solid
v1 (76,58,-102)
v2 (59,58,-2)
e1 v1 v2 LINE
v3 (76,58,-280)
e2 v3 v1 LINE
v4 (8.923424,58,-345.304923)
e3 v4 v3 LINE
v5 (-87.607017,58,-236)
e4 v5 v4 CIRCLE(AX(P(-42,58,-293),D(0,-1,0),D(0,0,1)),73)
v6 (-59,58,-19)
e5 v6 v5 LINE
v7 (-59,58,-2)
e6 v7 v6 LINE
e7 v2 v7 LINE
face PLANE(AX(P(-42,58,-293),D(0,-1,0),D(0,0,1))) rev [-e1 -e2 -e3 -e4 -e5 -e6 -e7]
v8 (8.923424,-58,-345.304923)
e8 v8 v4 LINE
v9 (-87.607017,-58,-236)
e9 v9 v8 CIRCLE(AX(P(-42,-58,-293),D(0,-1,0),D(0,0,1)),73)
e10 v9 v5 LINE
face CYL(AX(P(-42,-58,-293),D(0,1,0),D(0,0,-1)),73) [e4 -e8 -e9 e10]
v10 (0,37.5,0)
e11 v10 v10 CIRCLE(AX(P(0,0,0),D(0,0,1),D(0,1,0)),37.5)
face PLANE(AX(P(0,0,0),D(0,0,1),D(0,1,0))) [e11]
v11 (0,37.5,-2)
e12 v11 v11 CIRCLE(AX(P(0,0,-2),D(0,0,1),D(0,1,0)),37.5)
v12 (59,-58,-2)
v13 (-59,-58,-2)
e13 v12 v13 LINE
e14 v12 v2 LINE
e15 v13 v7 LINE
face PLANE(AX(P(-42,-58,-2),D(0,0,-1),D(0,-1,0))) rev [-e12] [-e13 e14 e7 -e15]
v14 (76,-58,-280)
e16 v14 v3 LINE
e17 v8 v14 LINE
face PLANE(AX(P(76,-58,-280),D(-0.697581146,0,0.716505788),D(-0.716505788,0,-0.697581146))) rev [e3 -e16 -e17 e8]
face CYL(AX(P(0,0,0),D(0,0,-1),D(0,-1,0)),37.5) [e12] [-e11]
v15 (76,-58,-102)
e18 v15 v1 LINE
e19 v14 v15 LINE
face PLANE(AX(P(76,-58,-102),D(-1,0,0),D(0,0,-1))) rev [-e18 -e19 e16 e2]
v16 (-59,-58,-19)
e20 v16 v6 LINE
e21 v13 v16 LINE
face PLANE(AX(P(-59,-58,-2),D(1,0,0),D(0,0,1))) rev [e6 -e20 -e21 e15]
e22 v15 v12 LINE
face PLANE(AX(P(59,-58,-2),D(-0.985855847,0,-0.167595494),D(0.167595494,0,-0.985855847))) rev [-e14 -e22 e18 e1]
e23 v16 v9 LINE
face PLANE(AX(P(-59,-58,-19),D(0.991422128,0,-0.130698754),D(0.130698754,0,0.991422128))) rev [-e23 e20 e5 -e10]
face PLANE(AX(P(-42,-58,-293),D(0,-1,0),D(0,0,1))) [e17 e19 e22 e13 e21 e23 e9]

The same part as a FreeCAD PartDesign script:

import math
import FreeCAD as App
import Part
import Sketcher

V = App.Vector
Q = App.Units.Quantity

doc = App.newDocument("Part")
body = doc.addObject("PartDesign::Body", "Body")

sketch1 = body.newObject("Sketcher::SketchObject", "Sketch")
sketch1.AttachmentSupport = (doc.getObject("XY_Plane"), [""])
sketch1.MapMode = "FlatFace"
sketch1.addGeometry([
    Part.LineSegment(V(291, 17, 0), V(274, 17, 0)),
    Part.LineSegment(V(274, 17, 0), V(57, 46, 0)),
    Part.ArcOfCircle(Part.Circle(V(0, 0, 0), V(0, 0, 1), 73), math.radians(39), math.radians(224)),
    Part.LineSegment(V(-52, -51, 0), V(13, -118, 0)),
    Part.LineSegment(V(13, -118, 0), V(191, -118, 0)),
    Part.LineSegment(V(191, -118, 0), V(291, -101, 0)),
    Part.LineSegment(V(291, -101, 0), V(291, 17, 0)),
], False)
sketch1.addConstraint([
    Sketcher.Constraint("Coincident", 0, 2, 1, 1),
    Sketcher.Constraint("Coincident", 1, 2, 2, 1),
    Sketcher.Constraint("Tangent", 2, 2, 3, 1),
    Sketcher.Constraint("Coincident", 3, 2, 4, 1),
    Sketcher.Constraint("Coincident", 4, 2, 5, 1),
    Sketcher.Constraint("Coincident", 5, 2, 6, 1),
    Sketcher.Constraint("Coincident", 6, 2, 0, 1),
    Sketcher.Constraint("Horizontal", 0),
    Sketcher.Constraint("Horizontal", 4),
    Sketcher.Constraint("Vertical", 6),
    Sketcher.Constraint("Coincident", 2, 3, -1, 1),
    Sketcher.Constraint("Radius", 2, Q("73 mm")),
    Sketcher.Constraint("DistanceX", 0, 2, 0, 1, Q("17 mm")),
    Sketcher.Constraint("DistanceX", 4, 1, 4, 2, Q("178 mm")),
    Sketcher.Constraint("DistanceY", 6, 1, 6, 2, Q("118 mm")),
    Sketcher.Constraint("DistanceX", -1, 1, 0, 2, Q("274 mm")),
    Sketcher.Constraint("DistanceY", -1, 1, 0, 2, Q("17 mm")),
    Sketcher.Constraint("DistanceX", -1, 1, 1, 2, Q("57 mm")),
    Sketcher.Constraint("DistanceX", -1, 1, 3, 2, Q("13 mm")),
    Sketcher.Constraint("DistanceY", 3, 2, -1, 1, Q("118 mm")),
])
pad1 = body.newObject("PartDesign::Pad", "Pad")
pad1.Profile = sketch1
pad1.Length = 116
pad1.Midplane = True

sketch2 = body.newObject("Sketcher::SketchObject", "Sketch001")
sketch2.AttachmentSupport = (doc.getObject("YZ_Plane"), [""])
sketch2.MapMode = "FlatFace"
sketch2.AttachmentOffset = App.Placement(V(0, 0, 291), App.Rotation())
sketch2.addGeometry(Part.Circle(V(-42, 0, 0), V(0, 0, 1), 38), False)
sketch2.addConstraint([
    Sketcher.Constraint("PointOnObject", 0, 3, -1),
    Sketcher.Constraint("Diameter", 0, Q("75 mm")),
    Sketcher.Constraint("DistanceX", 0, 3, -1, 1, Q("42 mm")),
])
pad2 = body.newObject("PartDesign::Pad", "Pad001")
pad2.Profile = sketch2
pad2.Length = 2
body2 = doc.addObject("PartDesign::Body", "Body001")
doc.recompute()

body.Placement = App.Placement(V(-293, 42, 0), App.Rotation(V(0, 0, 1), 0))
boolean = body2.newObject("PartDesign::Boolean", "Boolean")
boolean.Type = "Fuse"
boolean.addObjects([body])
body3 = doc.addObject("PartDesign::Body", "Body002")
doc.recompute()

body2.Placement = App.Placement(V(0, 0, 0), App.Rotation(V(0.577350269, -0.577350269, 0.577350269), 120))
boolean2 = body3.newObject("PartDesign::Boolean", "Boolean001")
boolean2.Type = "Fuse"
boolean2.addObjects([body2])

doc.recompute()
